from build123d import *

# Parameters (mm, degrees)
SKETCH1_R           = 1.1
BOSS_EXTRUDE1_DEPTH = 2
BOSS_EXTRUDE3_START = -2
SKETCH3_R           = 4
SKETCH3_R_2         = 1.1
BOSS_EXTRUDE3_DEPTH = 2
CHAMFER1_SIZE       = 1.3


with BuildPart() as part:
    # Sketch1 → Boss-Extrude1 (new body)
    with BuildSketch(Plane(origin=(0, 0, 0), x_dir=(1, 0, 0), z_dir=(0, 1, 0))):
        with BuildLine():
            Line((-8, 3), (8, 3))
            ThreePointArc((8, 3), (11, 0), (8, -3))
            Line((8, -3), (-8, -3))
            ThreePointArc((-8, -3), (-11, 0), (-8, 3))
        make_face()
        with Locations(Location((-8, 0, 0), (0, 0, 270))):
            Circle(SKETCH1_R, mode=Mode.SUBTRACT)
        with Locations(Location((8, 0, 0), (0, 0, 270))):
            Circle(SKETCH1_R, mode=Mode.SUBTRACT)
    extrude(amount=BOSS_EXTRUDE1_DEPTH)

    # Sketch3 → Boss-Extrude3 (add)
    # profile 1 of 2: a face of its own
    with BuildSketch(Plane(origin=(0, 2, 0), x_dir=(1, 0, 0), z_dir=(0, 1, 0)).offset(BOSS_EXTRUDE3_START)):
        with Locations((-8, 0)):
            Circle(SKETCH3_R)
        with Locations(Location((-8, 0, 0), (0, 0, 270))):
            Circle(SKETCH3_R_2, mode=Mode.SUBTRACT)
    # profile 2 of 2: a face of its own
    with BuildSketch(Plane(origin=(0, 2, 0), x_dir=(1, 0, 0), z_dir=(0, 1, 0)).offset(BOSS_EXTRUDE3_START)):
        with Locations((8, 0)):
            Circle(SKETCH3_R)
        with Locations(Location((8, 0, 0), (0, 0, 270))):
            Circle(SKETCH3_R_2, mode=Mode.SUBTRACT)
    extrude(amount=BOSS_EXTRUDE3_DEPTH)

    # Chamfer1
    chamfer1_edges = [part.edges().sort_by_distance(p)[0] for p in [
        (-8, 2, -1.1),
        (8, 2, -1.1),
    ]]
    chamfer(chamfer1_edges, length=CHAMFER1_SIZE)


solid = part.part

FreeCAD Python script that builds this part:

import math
import FreeCAD as App
import Part
import Sketcher
from FreeCAD import Vector
Q = App.Units.Quantity


def edges_at(feature, points):
    """Names of the edges that pass closest to the given points."""
    edges = feature.Shape.Edges
    near = lambda p: min(range(len(edges)), key=lambda i: edges[i].distToShape(Part.Vertex(*p))[0])
    return sorted({f"Edge{near(p) + 1}" for p in points})

doc = App.newDocument("Part")
body = doc.addObject("PartDesign::Body", "Body")

# Sketch on XZ plane
sketch1 = doc.addObject("Sketcher::SketchObject", "Sketch")
body.addObject(sketch1)
sketch1.AttachmentSupport = (doc.XZ_Plane, [""])
sketch1.MapMode = "FlatFace"
sketch1.addGeometry(Part.LineSegment(Vector(8, -3, 0), Vector(-8, -3, 0)), False)
sketch1.addGeometry(Part.ArcOfCircle(Part.Circle(Vector(-8, 0, 0), Vector(0, 0, 1), 3), math.radians(90), math.radians(270)), False)
sketch1.addGeometry(Part.LineSegment(Vector(-8, 3, 0), Vector(8, 3, 0)), False)
sketch1.addGeometry(Part.ArcOfCircle(Part.Circle(Vector(8, 0, 0), Vector(0, 0, 1), 3), math.radians(-90), math.radians(90)), False)
sketch1.addGeometry(Part.Circle(Vector(8, 0, 0), Vector(0, 0, 1), 1.1), False)
sketch1.addGeometry(Part.Circle(Vector(-8, 0, 0), Vector(0, 0, 1), 1.1), False)
sketch1.addConstraint(Sketcher.Constraint("Tangent", 0, 2, 1, 2))
sketch1.addConstraint(Sketcher.Constraint("Tangent", 1, 1, 2, 1))
sketch1.addConstraint(Sketcher.Constraint("Tangent", 2, 2, 3, 2))
sketch1.addConstraint(Sketcher.Constraint("Tangent", 3, 1, 0, 1))
sketch1.addConstraint(Sketcher.Constraint("Horizontal", 0))
sketch1.addConstraint(Sketcher.Constraint("Horizontal", 2))
sketch1.addConstraint(Sketcher.Constraint("Coincident", 4, 3, 3, 3))
sketch1.addConstraint(Sketcher.Constraint("Coincident", 5, 3, 1, 3))
sketch1.addConstraint(Sketcher.Constraint("Equal", 4, 5))
sketch1.addConstraint(Sketcher.Constraint("Symmetric", 1, 3, 3, 3, -1, 1))
sketch1.addConstraint(Sketcher.Constraint("Radius", 1, Q("3 mm")))
sketch1.addConstraint(Sketcher.Constraint("Diameter", 4, Q("2.2 mm")))
sketch1.addConstraint(Sketcher.Constraint("DistanceX", 0, 2, 0, 1, Q("16 mm")))
pad1 = doc.addObject("PartDesign::Pad", "Pad")
body.addObject(pad1)
pad1.Profile = sketch1
pad1.Length = 2
pad1.Reversed = True

# Sketch on XZ plane
sketch2 = doc.addObject("Sketcher::SketchObject", "Sketch001")
body.addObject(sketch2)
sketch2.AttachmentSupport = (doc.XZ_Plane, [""])
sketch2.MapMode = "FlatFace"
sketch2.addGeometry(Part.Circle(Vector(-8, 0, 0), Vector(0, 0, 1), 4), False)
sketch2.addGeometry(Part.Circle(Vector(-8, 0, 0), Vector(0, 0, 1), 1.1), False)
sketch2.addGeometry(Part.Circle(Vector(8, 0, 0), Vector(0, 0, 1), 4), False)
sketch2.addGeometry(Part.Circle(Vector(8, 0, 0), Vector(0, 0, 1), 1.1), False)
sketch2.addConstraint(Sketcher.Constraint("Coincident", 1, 3, 0, 3))
sketch2.addConstraint(Sketcher.Constraint("Coincident", 3, 3, 2, 3))
sketch2.addConstraint(Sketcher.Constraint("Equal", 0, 2))
sketch2.addConstraint(Sketcher.Constraint("Equal", 1, 3))
sketch2.addConstraint(Sketcher.Constraint("Symmetric", 0, 3, 2, 3, -1, 1))
sketch2.addConstraint(Sketcher.Constraint("PointOnObject", 0, 3, -1))
sketch2.addConstraint(Sketcher.Constraint("Diameter", 0, Q("8 mm")))
sketch2.addConstraint(Sketcher.Constraint("Diameter", 1, Q("2.2 mm")))
sketch2.addConstraint(Sketcher.Constraint("DistanceX", 0, 3, -1, 1, Q("8 mm")))
pad2 = doc.addObject("PartDesign::Pad", "Pad001")
body.addObject(pad2)
pad2.Profile = sketch2
pad2.Length = 2
pad2.Reversed = True
doc.recompute()

chamfer = doc.addObject("PartDesign::Chamfer", "Chamfer")
body.addObject(chamfer)
chamfer.Base = (pad2, edges_at(pad2, [(-8, 2, -1.1), (8, 2, -1.1)]))
chamfer.Size = 1.3

doc.recompute()
